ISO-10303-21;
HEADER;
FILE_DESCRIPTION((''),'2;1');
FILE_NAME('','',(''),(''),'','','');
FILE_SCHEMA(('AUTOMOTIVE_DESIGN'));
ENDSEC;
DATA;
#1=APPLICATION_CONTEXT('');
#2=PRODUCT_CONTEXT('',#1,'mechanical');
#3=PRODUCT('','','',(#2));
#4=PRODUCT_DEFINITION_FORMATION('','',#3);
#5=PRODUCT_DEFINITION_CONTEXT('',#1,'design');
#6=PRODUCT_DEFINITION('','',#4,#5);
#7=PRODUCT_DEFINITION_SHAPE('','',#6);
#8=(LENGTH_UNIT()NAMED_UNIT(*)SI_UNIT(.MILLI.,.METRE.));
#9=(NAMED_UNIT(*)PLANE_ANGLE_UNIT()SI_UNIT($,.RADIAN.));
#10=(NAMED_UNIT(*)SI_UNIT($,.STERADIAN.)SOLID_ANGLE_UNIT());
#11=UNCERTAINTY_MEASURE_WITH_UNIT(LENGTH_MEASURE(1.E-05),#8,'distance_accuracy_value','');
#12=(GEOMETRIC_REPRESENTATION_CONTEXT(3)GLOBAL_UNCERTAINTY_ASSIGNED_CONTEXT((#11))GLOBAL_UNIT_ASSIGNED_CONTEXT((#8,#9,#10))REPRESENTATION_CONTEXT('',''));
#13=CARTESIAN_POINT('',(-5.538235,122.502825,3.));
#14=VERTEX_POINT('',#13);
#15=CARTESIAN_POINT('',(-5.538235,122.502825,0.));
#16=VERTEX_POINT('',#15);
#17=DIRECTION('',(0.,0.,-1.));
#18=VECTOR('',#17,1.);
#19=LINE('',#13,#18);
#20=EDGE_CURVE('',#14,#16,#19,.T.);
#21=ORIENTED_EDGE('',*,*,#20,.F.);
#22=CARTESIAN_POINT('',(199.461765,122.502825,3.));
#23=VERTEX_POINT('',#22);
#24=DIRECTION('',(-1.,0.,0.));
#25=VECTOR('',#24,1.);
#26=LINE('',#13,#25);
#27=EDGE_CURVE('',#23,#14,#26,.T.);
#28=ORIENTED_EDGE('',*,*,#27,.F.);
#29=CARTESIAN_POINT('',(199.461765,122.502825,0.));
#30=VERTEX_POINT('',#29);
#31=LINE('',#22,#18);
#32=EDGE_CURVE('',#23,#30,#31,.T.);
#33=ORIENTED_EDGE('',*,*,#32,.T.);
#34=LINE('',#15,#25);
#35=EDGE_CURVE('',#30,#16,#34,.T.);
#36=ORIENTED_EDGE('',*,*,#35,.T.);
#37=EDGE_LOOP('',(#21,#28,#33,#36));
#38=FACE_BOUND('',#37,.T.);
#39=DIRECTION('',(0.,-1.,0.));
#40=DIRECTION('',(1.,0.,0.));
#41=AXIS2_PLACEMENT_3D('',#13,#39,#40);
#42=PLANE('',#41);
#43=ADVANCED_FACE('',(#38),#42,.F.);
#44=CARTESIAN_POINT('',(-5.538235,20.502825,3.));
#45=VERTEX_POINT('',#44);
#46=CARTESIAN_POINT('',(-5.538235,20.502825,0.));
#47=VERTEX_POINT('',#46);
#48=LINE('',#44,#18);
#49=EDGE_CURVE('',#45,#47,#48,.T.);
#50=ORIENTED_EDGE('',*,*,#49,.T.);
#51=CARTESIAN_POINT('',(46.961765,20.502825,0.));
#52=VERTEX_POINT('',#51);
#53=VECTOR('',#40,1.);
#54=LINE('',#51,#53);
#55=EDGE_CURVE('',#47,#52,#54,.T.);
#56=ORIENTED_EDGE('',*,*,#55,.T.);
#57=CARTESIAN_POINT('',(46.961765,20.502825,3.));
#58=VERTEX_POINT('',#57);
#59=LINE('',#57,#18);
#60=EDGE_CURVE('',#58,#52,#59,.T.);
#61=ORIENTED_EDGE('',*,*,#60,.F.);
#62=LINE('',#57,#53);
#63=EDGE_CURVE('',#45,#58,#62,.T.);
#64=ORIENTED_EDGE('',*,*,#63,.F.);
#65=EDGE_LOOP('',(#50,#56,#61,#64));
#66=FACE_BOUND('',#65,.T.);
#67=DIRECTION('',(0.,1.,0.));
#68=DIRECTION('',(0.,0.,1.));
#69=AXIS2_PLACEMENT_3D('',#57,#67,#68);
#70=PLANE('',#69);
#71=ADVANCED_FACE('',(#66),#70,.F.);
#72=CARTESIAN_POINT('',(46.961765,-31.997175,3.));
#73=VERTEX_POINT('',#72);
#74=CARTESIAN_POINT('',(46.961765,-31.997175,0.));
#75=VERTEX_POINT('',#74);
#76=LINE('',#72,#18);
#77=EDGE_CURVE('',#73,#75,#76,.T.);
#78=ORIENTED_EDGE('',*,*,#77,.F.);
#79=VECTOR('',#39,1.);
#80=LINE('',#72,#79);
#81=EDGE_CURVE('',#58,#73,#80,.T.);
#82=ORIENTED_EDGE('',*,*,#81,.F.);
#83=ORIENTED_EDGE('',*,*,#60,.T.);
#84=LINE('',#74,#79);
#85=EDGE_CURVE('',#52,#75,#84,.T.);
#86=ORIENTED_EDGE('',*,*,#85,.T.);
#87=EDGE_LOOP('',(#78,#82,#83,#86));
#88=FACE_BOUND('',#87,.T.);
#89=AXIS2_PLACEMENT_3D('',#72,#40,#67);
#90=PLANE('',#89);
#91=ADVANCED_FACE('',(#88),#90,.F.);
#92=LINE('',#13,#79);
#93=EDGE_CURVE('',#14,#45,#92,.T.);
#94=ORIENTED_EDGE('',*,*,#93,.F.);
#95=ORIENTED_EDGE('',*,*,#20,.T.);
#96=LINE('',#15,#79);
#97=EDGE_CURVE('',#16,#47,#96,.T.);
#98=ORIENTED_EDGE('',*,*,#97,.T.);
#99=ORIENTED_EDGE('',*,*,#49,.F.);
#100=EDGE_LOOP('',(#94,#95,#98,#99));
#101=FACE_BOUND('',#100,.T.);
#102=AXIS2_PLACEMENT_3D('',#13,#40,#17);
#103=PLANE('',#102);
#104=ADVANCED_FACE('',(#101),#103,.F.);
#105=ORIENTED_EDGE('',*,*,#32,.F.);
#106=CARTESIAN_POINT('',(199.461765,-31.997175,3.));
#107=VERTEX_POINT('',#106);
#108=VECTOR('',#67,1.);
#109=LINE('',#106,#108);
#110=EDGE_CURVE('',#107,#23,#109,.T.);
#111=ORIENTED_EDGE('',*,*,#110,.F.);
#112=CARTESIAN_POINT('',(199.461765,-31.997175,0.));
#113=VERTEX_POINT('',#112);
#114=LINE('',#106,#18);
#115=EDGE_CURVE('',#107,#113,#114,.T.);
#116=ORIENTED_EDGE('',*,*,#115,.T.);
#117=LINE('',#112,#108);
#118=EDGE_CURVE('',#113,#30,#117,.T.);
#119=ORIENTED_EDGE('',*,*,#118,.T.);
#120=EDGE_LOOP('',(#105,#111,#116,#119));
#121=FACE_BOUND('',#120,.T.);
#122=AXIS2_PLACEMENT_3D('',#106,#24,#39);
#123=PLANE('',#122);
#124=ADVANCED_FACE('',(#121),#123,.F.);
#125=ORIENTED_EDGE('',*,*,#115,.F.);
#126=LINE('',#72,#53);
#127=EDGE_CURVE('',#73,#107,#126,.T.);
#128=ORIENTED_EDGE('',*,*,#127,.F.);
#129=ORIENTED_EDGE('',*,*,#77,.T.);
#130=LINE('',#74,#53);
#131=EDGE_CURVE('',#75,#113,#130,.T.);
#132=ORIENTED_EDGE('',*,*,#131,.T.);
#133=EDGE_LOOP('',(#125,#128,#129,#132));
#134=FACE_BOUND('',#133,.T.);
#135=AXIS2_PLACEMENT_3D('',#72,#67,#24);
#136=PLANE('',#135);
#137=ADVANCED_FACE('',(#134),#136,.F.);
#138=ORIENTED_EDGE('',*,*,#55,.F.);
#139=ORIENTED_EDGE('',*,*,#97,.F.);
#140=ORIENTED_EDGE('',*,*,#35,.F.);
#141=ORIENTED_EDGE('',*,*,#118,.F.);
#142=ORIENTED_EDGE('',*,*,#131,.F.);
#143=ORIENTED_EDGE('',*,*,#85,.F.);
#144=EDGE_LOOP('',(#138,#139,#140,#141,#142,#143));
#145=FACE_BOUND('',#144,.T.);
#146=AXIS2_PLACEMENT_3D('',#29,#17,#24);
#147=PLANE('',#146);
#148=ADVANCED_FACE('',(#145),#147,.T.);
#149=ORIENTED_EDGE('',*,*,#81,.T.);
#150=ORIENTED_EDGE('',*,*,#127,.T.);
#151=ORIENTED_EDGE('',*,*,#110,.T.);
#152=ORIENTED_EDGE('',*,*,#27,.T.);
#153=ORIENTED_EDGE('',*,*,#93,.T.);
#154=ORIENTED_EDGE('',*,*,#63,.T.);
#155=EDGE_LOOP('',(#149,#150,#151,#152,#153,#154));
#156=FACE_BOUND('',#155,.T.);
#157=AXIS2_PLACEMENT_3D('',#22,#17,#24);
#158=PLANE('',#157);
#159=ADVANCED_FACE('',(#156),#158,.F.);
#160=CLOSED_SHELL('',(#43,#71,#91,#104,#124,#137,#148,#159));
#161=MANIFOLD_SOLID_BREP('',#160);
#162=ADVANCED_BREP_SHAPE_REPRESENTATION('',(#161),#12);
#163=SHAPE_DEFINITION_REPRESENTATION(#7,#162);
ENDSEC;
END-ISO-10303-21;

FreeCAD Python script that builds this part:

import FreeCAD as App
import Part
import Sketcher

V = App.Vector


def add_polygon(sketch, points):
    """Adds a closed chain of lines whose ends are joined by coincident constraints."""
    first, n = sketch.GeometryCount, len(points)
    for a, b in zip(points, points[1:] + points[:1]):
        sketch.addGeometry(Part.LineSegment(App.Vector(*a, 0), App.Vector(*b, 0)), False)
    for i in range(n):
        sketch.addConstraint(Sketcher.Constraint("Coincident", first + i, 2, first + (i + 1) % n, 1))

doc = App.newDocument("Part")
params = doc.addObject("Spreadsheet::Sheet", "Params")
for row, (alias, value) in enumerate([
    ("sketch1_width", "205 mm"),
    ("sketch1_height", "102 mm"),
    ("sketch1_width2", "152.5 mm"),
    ("pad1_length", "3 mm"),
], start=1):
    params.set(f"A{row}", alias)
    params.set(f"B{row}", "=" + value)
    params.setAlias(f"B{row}", alias)

body = doc.addObject("PartDesign::Body", "Body")

sketch1 = doc.addObject("Sketcher::SketchObject", "Sketch")
body.addObject(sketch1)
sketch1.AttachmentSupport = (doc.XY_Plane, [""])
sketch1.MapMode = "FlatFace"
add_polygon(sketch1, [(47, 21), (47, -32), (199, -32), (199, 123), (-6, 123), (-6, 21)])
sketch1.addConstraint(Sketcher.Constraint("Vertical", 0))
sketch1.addConstraint(Sketcher.Constraint("Horizontal", 1))
sketch1.addConstraint(Sketcher.Constraint("Vertical", 2))
sketch1.addConstraint(Sketcher.Constraint("Horizontal", 3))
sketch1.addConstraint(Sketcher.Constraint("Vertical", 4))
sketch1.addConstraint(Sketcher.Constraint("Horizontal", 5))
sketch1.addConstraint(Sketcher.Constraint("Equal", 5, 0))
sketch1.addConstraint(Sketcher.Constraint("DistanceX", 3, 2, 3, 1, 205.0))
sketch1.addConstraint(Sketcher.Constraint("DistanceY", 4, 2, 4, 1, 102.0))
sketch1.addConstraint(Sketcher.Constraint("DistanceX", 1, 1, 1, 2, 152.5))
sketch1.addConstraint(Sketcher.Constraint("DistanceX", -1, 1, 0, 2, 46.961765))
sketch1.addConstraint(Sketcher.Constraint("DistanceY", 0, 2, -1, 1, 31.997175))
sketch1.setExpression("Constraints[13]", "Params.sketch1_width")
sketch1.setExpression("Constraints[14]", "Params.sketch1_height")
sketch1.setExpression("Constraints[15]", "Params.sketch1_width2")
pad1 = doc.addObject("PartDesign::Pad", "Pad")
body.addObject(pad1)
pad1.Profile = sketch1
pad1.setExpression("Length", "Params.pad1_length")

doc.recompute()
